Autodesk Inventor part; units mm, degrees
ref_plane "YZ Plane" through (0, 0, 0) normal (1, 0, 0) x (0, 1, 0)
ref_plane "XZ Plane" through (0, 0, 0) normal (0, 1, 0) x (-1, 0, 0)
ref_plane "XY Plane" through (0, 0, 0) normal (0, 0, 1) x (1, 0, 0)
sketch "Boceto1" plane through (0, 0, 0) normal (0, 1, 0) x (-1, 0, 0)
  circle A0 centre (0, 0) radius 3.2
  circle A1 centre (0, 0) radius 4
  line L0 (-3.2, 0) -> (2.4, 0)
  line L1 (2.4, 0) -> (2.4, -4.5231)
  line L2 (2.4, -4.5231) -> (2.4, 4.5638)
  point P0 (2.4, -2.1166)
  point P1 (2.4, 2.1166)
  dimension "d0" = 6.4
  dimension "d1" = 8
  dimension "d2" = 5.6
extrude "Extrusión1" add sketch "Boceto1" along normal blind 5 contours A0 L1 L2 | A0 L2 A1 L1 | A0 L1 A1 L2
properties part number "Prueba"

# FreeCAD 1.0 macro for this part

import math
import FreeCAD as App
import Part
import Sketcher

V = App.Vector

doc = App.newDocument("Part")
body = doc.addObject("PartDesign::Body", "Body")

# Sketch on XZ plane
sketch1 = body.newObject("Sketcher::SketchObject", "Sketch")
sketch1.AttachmentSupport = (doc.getObject("XZ_Plane"), [""])
sketch1.MapMode = "FlatFace"
sketch1.addGeometry([
    Part.Circle(V(0, 0, 0), V(0, 0, 1), 4),
    Part.ArcOfCircle(Part.Circle(V(0, 0, 0), V(0, 0, 1), 3.2), math.radians(-138.590378), math.radians(138.590378)),
    Part.LineSegment(V(-2.4, 2.116601, 0), V(-2.4, -2.116601, 0)),
], False)
sketch1.addConstraint([
    Sketcher.Constraint("Coincident", 1, 1, 2, 2),
    Sketcher.Constraint("Coincident", 2, 1, 1, 2),
    Sketcher.Constraint("Vertical", 2),
    Sketcher.Constraint("Coincident", 0, 3, -1, 1),
    Sketcher.Constraint("Coincident", 1, 3, -1, 1),
    Sketcher.Constraint("Diameter", 0, 8.0),
    Sketcher.Constraint("Radius", 1, 3.2),
    Sketcher.Constraint("DistanceX", 1, 1, -1, 1, 2.4),
])
pad1 = body.newObject("PartDesign::Pad", "Pad")
pad1.Profile = sketch1
pad1.Length = 5
pad1.Reversed = True

doc.recompute()
